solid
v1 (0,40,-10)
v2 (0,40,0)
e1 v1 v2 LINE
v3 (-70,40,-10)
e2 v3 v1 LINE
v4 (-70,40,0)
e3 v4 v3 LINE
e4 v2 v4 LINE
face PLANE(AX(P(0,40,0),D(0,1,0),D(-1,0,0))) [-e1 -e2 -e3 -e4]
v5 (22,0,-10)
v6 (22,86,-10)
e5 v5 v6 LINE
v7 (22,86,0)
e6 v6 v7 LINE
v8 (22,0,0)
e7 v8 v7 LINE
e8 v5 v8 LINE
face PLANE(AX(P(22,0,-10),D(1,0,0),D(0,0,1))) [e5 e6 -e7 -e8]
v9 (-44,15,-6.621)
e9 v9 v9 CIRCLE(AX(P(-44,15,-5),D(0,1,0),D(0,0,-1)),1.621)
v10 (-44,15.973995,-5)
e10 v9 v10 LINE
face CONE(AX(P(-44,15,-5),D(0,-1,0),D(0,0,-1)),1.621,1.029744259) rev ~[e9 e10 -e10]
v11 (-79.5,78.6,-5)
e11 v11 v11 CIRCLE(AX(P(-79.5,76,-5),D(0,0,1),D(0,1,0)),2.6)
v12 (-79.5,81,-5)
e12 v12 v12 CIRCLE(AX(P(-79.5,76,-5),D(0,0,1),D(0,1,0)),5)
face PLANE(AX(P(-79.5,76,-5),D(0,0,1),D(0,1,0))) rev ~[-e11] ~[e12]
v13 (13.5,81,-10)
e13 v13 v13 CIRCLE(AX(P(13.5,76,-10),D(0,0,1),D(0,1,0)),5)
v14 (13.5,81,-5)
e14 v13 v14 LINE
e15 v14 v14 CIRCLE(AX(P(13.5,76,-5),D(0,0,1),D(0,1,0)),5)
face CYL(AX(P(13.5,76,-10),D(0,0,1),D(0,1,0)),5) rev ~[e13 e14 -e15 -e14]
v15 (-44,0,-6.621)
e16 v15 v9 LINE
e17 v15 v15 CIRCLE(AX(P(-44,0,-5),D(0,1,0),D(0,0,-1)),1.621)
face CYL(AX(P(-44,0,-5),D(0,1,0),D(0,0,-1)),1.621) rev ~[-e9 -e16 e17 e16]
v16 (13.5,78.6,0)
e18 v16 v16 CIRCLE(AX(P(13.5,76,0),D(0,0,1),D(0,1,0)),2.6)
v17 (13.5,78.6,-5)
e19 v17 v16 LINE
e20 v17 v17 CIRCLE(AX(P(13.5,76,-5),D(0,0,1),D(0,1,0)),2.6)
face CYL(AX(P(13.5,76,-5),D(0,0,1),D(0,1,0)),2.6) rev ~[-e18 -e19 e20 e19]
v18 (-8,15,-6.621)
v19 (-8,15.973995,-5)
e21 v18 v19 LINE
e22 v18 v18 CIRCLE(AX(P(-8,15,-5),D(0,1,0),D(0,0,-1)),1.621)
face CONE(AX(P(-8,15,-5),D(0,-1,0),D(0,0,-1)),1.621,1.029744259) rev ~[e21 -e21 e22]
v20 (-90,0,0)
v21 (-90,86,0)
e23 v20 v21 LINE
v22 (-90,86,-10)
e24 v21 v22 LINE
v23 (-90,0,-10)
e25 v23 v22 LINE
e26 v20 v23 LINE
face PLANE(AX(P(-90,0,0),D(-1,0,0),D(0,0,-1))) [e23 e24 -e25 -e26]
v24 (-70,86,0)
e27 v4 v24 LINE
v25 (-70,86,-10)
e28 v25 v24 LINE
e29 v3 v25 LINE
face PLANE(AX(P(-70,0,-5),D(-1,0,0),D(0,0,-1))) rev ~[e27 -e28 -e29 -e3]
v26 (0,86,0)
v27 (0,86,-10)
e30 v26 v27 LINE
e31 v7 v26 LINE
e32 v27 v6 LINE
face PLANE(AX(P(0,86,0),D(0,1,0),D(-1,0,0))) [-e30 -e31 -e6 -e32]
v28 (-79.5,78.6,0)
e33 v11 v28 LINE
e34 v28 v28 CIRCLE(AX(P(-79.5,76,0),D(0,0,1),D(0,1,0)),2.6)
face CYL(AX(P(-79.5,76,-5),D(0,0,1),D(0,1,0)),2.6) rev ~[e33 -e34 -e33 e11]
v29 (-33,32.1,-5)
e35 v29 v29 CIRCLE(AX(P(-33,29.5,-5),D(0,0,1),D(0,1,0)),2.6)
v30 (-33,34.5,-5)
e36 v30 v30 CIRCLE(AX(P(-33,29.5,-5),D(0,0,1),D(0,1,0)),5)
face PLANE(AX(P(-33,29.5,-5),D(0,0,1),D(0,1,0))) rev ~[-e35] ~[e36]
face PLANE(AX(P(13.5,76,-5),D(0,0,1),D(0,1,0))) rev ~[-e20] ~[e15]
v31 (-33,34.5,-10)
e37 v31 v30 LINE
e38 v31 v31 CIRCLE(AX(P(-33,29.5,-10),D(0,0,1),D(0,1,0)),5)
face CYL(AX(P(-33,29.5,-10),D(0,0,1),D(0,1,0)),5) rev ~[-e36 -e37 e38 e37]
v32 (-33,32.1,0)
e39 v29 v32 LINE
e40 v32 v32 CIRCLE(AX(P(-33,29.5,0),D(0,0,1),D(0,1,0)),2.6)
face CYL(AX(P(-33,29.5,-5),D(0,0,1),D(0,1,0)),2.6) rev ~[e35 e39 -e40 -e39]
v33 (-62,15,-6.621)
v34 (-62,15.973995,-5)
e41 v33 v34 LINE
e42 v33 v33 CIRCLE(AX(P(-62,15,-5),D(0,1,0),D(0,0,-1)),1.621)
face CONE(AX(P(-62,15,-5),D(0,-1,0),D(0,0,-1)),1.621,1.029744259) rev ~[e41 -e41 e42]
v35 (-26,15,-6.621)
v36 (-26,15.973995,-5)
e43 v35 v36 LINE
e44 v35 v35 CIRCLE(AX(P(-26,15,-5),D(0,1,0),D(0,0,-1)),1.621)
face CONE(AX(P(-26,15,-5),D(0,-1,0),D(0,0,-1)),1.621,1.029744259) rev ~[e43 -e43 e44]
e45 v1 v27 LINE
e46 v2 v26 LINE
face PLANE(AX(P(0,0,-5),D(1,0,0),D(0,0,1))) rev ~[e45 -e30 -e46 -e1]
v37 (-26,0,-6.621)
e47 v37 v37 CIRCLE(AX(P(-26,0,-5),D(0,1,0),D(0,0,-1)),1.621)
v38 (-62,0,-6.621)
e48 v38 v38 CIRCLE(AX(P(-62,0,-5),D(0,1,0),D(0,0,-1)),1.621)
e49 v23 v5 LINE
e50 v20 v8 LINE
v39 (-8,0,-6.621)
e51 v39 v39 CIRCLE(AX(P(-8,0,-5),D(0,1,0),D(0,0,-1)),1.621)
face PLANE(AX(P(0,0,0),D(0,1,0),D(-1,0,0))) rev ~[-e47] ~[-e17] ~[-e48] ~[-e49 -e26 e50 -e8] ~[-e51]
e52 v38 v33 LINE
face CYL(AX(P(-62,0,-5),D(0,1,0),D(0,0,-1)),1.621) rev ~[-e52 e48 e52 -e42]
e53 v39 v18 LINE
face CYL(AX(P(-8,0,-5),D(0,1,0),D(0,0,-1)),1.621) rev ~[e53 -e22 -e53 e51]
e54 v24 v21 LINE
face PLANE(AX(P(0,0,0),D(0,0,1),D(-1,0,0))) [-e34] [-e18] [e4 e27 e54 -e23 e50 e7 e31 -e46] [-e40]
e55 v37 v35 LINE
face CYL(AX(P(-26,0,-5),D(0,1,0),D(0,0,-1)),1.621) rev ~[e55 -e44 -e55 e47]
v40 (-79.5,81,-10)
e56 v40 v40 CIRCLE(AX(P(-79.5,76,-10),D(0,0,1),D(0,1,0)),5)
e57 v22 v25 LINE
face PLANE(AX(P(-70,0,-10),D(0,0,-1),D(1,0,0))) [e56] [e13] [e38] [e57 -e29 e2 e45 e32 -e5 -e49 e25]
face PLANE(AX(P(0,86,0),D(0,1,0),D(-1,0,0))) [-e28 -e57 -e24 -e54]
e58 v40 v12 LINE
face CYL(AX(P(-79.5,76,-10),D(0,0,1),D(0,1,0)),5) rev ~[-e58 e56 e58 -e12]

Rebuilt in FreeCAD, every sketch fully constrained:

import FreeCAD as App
import Part
import Sketcher
Q = App.Units.Quantity

doc = App.newDocument("Part")
params = doc.addObject("Spreadsheet::Sheet", "Params")
for row, (alias, value) in enumerate([
    ("sketch1_width", "70 mm"),
    ("sketch1_height", "10 mm"),
    ("pad1_length", "40 mm"),
    ("hole_diameter", "3.242 mm"),
    ("hole_depth", "15 mm"),
    ("sketch3_width", "22 mm"),
    ("sketch3_width2", "20 mm"),
    ("sketch3_height", "10 mm"),
    ("pad2_length", "86 mm"),
    ("sketch4_diameter", "5.2 mm"),
    ("hole2_diameter", "5.2 mm"),
    ("hole2_cbore_diameter", "10 mm"),
    ("hole2_cbore_depth", "5 mm"),
], start=1):
    params.set(f"A{row}", alias)
    params.set(f"B{row}", "=" + value)
    params.setAlias(f"B{row}", alias)

body = doc.addObject("PartDesign::Body", "Body")

sketch1 = doc.addObject("Sketcher::SketchObject", "Sketch")
body.addObject(sketch1)
sketch1.AttachmentSupport = (doc.XZ_Plane, [""])
sketch1.MapMode = "FlatFace"
sketch1.addGeometry([
    Part.LineSegment(App.Vector(-70, 0, 0), App.Vector(0, 0, 0)),
    Part.LineSegment(App.Vector(0, 0, 0), App.Vector(0, -10, 0)),
    Part.LineSegment(App.Vector(0, -10, 0), App.Vector(-70, -10, 0)),
    Part.LineSegment(App.Vector(-70, -10, 0), App.Vector(-70, 0, 0)),
], False)
sketch1.addConstraint([
    Sketcher.Constraint("Coincident", 0, 2, 1, 1),
    Sketcher.Constraint("Coincident", 1, 2, 2, 1),
    Sketcher.Constraint("Coincident", 2, 2, 3, 1),
    Sketcher.Constraint("Coincident", 3, 2, 0, 1),
    Sketcher.Constraint("Horizontal", 0),
    Sketcher.Constraint("Vertical", 1),
    Sketcher.Constraint("Horizontal", 2),
    Sketcher.Constraint("Vertical", 3),
    Sketcher.Constraint("Coincident", 0, 2, -1, 1),
    Sketcher.Constraint("DistanceX", 0, 1, 0, 2, Q("70 mm")),
    Sketcher.Constraint("DistanceY", 1, 2, 1, 1, Q("10 mm")),
])
sketch1.setExpression("Constraints[9]", "Params.sketch1_width")
sketch1.setExpression("Constraints[10]", "Params.sketch1_height")
pad1 = doc.addObject("PartDesign::Pad", "Pad")
body.addObject(pad1)
pad1.Profile = sketch1
pad1.setExpression("Length", "Params.pad1_length")
pad1.Reversed = True

sketch2 = doc.addObject("Sketcher::SketchObject", "Sketch001")
body.addObject(sketch2)
sketch2.AttachmentSupport = (doc.XZ_Plane, [""])
sketch2.MapMode = "FlatFace"
sketch2.addGeometry([
    Part.Circle(App.Vector(6, -5, 0), App.Vector(0, 0, 1), 1.6),
    Part.Circle(App.Vector(-8, -5, 0), App.Vector(0, 0, 1), 1.6),
    Part.Circle(App.Vector(-26, -5, 0), App.Vector(0, 0, 1), 1.6),
    Part.Circle(App.Vector(-44, -5, 0), App.Vector(0, 0, 1), 1.6),
    Part.Circle(App.Vector(-62, -5, 0), App.Vector(0, 0, 1), 1.6),
], False)
sketch2.addConstraint([
    Sketcher.Constraint("Equal", 0, 1),
    Sketcher.Constraint("Equal", 1, 2),
    Sketcher.Constraint("Equal", 2, 3),
    Sketcher.Constraint("Equal", 3, 4),
    Sketcher.Constraint("Horizontal", 0, 3, 1, 3),
    Sketcher.Constraint("Horizontal", 1, 3, 2, 3),
    Sketcher.Constraint("Horizontal", 2, 3, 3, 3),
    Sketcher.Constraint("Horizontal", 3, 3, 4, 3),
    Sketcher.Constraint("Diameter", 0, Q("3.242 mm")),
    Sketcher.Constraint("DistanceX", -1, 1, 0, 3, Q("6 mm")),
    Sketcher.Constraint("DistanceY", 0, 3, -1, 1, Q("5 mm")),
    Sketcher.Constraint("DistanceX", 1, 3, -1, 1, Q("8 mm")),
    Sketcher.Constraint("DistanceX", 2, 3, -1, 1, Q("26 mm")),
    Sketcher.Constraint("DistanceX", 3, 3, -1, 1, Q("44 mm")),
    Sketcher.Constraint("DistanceX", 4, 3, -1, 1, Q("62 mm")),
])
doc.recompute()
hole = doc.addObject("PartDesign::Hole", "Hole")
body.addObject(hole)
hole.Profile = sketch2
hole.ThreadType = "None"
hole.setExpression("Diameter", "Params.hole_diameter")
hole.DepthType = "Dimension"
hole.setExpression("Depth", "Params.hole_depth")
hole.DrillPoint = "Angled"
hole.DrillPointAngle = 118

sketch3 = doc.addObject("Sketcher::SketchObject", "Sketch002")
body.addObject(sketch3)
sketch3.AttachmentSupport = (doc.XZ_Plane, [""])
sketch3.MapMode = "FlatFace"
sketch3.addGeometry([
    Part.LineSegment(App.Vector(0, -10, 0), App.Vector(0, 0, 0)),
    Part.LineSegment(App.Vector(0, 0, 0), App.Vector(22, 0, 0)),
    Part.LineSegment(App.Vector(22, 0, 0), App.Vector(22, -10, 0)),
    Part.LineSegment(App.Vector(22, -10, 0), App.Vector(0, -10, 0)),
    Part.LineSegment(App.Vector(-90, 0, 0), App.Vector(-70, 0, 0)),
    Part.LineSegment(App.Vector(-70, 0, 0), App.Vector(-70, -10, 0)),
    Part.LineSegment(App.Vector(-70, -10, 0), App.Vector(-90, -10, 0)),
    Part.LineSegment(App.Vector(-90, -10, 0), App.Vector(-90, 0, 0)),
], False)
sketch3.addConstraint([
    Sketcher.Constraint("Coincident", 0, 2, 1, 1),
    Sketcher.Constraint("Coincident", 1, 2, 2, 1),
    Sketcher.Constraint("Coincident", 2, 2, 3, 1),
    Sketcher.Constraint("Coincident", 3, 2, 0, 1),
    Sketcher.Constraint("Coincident", 4, 2, 5, 1),
    Sketcher.Constraint("Coincident", 5, 2, 6, 1),
    Sketcher.Constraint("Coincident", 6, 2, 7, 1),
    Sketcher.Constraint("Coincident", 7, 2, 4, 1),
    Sketcher.Constraint("Vertical", 0),
    Sketcher.Constraint("Horizontal", 1),
    Sketcher.Constraint("Vertical", 2),
    Sketcher.Constraint("Horizontal", 3),
    Sketcher.Constraint("Horizontal", 4),
    Sketcher.Constraint("Vertical", 5),
    Sketcher.Constraint("Horizontal", 6),
    Sketcher.Constraint("Vertical", 7),
    Sketcher.Constraint("Coincident", 0, 2, -1, 1),
    Sketcher.Constraint("PointOnObject", 4, 2, -1),
    Sketcher.Constraint("Horizontal", 3, 2, 5, 2),
    Sketcher.Constraint("DistanceX", 1, 1, 1, 2, Q("22 mm")),
    Sketcher.Constraint("DistanceX", 4, 1, 4, 2, Q("20 mm")),
    Sketcher.Constraint("DistanceY", 0, 1, 0, 2, Q("10 mm")),
    Sketcher.Constraint("DistanceX", 4, 2, -1, 1, Q("70 mm")),
])
sketch3.setExpression("Constraints[19]", "Params.sketch3_width")
sketch3.setExpression("Constraints[20]", "Params.sketch3_width2")
sketch3.setExpression("Constraints[21]", "Params.sketch3_height")
pad2 = doc.addObject("PartDesign::Pad", "Pad001")
body.addObject(pad2)
pad2.Profile = sketch3
pad2.setExpression("Length", "Params.pad2_length")
pad2.Reversed = True

sketch4 = doc.addObject("Sketcher::SketchObject", "Sketch003")
body.addObject(sketch4)
sketch4.AttachmentSupport = (doc.XY_Plane, [""])
sketch4.MapMode = "FlatFace"
sketch4.AttachmentOffset = App.Placement(App.Vector(0, 0, -10), App.Rotation())
sketch4.addGeometry([
    Part.Circle(App.Vector(-79.5, 76, 0), App.Vector(0, 0, 1), 2.6),
    Part.Circle(App.Vector(13.5, 76, 0), App.Vector(0, 0, 1), 2.6),
    Part.Circle(App.Vector(-33, 29.5, 0), App.Vector(0, 0, 1), 2.6),
], False)
sketch4.addConstraint([
    Sketcher.Constraint("Equal", 0, 1),
    Sketcher.Constraint("Equal", 1, 2),
    Sketcher.Constraint("Horizontal", 0, 3, 1, 3),
    Sketcher.Constraint("Diameter", 0, Q("5.2 mm")),
    Sketcher.Constraint("DistanceY", -1, 1, 0, 3, Q("76 mm")),
    Sketcher.Constraint("DistanceX", 2, 3, -1, 1, Q("33 mm")),
    Sketcher.Constraint("DistanceX", 0, 3, 1, 3, Q("93 mm")),
    Sketcher.Constraint("DistanceX", 0, 3, -1, 1, Q("79.5 mm")),
    Sketcher.Constraint("DistanceY", -1, 1, 2, 3, Q("29.5 mm")),
])
sketch4.setExpression("Constraints[3]", "Params.sketch4_diameter")
doc.recompute()
hole2 = doc.addObject("PartDesign::Hole", "Hole001")
body.addObject(hole2)
hole2.Profile = sketch4
hole2.ThreadType = "None"
hole2.setExpression("Diameter", "Params.hole2_diameter")
hole2.DepthType = "ThroughAll"
hole2.HoleCutType = "Counterbore"
hole2.setExpression("HoleCutDiameter", "Params.hole2_cbore_diameter")
hole2.setExpression("HoleCutDepth", "Params.hole2_cbore_depth")
hole2.Reversed = True

doc.recompute()
